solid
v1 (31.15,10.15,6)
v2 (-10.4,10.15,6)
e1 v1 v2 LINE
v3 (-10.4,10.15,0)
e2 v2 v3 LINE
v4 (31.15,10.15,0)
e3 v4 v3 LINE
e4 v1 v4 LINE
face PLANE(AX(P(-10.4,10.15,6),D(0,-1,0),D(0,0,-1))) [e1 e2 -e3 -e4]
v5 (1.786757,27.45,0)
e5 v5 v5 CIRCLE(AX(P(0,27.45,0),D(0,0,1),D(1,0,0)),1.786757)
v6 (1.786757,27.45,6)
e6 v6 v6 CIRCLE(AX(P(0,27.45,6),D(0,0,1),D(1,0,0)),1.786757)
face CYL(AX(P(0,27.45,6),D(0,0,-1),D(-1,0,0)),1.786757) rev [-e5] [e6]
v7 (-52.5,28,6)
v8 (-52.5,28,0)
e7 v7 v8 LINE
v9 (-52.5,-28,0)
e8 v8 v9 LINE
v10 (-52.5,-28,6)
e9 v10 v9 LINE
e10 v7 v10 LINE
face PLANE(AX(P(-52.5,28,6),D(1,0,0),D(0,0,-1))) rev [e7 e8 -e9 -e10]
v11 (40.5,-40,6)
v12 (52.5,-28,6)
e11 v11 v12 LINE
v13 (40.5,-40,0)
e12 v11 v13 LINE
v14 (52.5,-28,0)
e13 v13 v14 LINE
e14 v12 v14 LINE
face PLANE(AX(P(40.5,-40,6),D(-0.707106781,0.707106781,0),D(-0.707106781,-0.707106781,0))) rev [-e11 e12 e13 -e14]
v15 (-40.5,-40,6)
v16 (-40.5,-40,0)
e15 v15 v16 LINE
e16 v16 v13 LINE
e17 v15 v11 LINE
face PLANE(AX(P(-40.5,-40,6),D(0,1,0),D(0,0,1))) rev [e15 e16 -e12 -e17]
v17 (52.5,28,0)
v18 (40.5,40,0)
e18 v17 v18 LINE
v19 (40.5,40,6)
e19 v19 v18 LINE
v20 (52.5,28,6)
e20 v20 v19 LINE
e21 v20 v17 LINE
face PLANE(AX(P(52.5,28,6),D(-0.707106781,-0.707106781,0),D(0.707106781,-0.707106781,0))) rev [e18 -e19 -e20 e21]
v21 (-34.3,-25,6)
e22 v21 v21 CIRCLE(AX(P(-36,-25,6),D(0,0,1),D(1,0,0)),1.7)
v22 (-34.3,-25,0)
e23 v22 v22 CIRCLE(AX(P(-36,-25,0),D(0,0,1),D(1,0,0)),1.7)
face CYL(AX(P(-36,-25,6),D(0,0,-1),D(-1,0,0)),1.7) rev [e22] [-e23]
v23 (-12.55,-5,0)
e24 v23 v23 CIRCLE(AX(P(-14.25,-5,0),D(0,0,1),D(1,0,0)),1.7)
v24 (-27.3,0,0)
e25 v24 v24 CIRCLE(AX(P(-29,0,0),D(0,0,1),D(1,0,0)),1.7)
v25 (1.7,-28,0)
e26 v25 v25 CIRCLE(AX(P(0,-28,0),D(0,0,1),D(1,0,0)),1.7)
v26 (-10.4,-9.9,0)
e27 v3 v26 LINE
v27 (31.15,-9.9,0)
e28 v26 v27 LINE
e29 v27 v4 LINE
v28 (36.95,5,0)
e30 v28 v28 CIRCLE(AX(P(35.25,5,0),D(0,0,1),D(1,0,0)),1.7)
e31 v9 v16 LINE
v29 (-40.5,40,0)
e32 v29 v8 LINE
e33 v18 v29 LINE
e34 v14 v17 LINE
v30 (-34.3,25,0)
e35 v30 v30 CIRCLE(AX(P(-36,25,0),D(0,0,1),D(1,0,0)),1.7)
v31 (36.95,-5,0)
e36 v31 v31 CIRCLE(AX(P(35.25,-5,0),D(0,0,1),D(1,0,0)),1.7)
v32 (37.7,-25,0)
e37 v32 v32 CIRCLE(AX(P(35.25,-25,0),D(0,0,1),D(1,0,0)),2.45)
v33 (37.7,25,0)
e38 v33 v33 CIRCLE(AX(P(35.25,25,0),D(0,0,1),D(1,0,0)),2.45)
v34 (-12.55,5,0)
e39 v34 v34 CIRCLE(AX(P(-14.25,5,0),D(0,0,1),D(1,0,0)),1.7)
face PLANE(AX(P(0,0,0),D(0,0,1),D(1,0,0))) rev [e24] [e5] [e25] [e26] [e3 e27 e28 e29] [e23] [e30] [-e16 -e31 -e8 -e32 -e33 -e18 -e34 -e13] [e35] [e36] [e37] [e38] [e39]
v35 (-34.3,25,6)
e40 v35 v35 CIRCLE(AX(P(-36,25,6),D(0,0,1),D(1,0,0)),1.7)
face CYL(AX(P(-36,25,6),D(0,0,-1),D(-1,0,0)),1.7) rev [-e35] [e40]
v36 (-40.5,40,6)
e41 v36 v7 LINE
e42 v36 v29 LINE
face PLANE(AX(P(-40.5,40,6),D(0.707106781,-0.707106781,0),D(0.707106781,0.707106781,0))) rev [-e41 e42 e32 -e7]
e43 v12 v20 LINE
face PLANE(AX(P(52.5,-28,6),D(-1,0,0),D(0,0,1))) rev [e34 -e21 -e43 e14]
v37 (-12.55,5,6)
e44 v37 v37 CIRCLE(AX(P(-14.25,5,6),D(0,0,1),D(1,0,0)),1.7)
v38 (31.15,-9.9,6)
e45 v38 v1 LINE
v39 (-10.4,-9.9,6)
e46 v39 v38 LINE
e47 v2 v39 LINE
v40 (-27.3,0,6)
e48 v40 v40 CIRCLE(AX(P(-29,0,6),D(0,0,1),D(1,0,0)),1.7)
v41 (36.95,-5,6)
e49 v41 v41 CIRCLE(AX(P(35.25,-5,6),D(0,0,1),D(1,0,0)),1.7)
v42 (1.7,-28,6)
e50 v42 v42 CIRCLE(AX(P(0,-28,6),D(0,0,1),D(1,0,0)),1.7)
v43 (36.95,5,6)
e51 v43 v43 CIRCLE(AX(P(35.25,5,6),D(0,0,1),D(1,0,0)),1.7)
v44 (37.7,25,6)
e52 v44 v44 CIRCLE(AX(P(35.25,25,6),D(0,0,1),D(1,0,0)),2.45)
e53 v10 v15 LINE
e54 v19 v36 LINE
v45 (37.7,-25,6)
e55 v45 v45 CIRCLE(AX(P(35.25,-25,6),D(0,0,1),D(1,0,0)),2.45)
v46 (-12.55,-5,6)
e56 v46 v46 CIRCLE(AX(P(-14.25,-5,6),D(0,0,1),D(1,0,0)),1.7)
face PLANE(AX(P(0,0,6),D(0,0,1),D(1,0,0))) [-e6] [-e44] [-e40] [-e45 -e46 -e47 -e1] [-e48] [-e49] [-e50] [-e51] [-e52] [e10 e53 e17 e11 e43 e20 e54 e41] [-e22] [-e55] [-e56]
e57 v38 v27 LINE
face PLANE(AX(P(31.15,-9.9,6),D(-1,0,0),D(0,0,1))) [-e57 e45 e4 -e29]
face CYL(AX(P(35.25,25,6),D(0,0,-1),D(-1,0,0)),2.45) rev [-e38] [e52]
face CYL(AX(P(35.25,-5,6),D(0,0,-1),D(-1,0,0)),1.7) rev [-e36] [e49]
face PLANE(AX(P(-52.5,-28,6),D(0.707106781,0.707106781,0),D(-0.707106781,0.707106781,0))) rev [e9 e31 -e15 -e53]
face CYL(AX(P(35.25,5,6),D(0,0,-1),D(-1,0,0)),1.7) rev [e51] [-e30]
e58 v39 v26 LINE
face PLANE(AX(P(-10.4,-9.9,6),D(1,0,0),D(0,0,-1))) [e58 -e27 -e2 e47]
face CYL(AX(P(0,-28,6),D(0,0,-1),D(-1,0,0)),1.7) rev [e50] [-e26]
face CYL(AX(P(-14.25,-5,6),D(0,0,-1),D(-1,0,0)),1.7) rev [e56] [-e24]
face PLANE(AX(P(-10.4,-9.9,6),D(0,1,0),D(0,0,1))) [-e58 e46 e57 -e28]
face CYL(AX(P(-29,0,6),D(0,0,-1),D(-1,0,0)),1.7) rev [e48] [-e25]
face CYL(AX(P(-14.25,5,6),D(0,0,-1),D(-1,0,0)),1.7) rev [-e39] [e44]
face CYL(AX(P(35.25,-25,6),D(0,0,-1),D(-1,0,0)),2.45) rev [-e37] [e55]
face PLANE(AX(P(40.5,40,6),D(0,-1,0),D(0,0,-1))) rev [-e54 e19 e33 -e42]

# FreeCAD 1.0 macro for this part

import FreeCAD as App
import Part
import Sketcher

V = App.Vector

doc = App.newDocument("Part")
body = doc.addObject("PartDesign::Body", "Body")

sketch1 = body.newObject("Sketcher::SketchObject", "Sketch")
sketch1.AttachmentSupport = (doc.getObject("XY_Plane"), [""])
sketch1.MapMode = "FlatFace"
sketch1.addGeometry([
    Part.LineSegment(V(-40.5, -40, 0), V(40.5, -40, 0)),
    Part.LineSegment(V(40.5, -40, 0), V(52.5, -28, 0)),
    Part.LineSegment(V(52.5, -28, 0), V(52.5, 28, 0)),
    Part.LineSegment(V(52.5, 28, 0), V(40.5, 40, 0)),
    Part.LineSegment(V(40.5, 40, 0), V(-40.5, 40, 0)),
    Part.LineSegment(V(-40.5, 40, 0), V(-52.5, 28, 0)),
    Part.LineSegment(V(-52.5, 28, 0), V(-52.5, -28, 0)),
    Part.LineSegment(V(-52.5, -28, 0), V(-40.5, -40, 0)),
    Part.Circle(V(-36, -25, 0), V(0, 0, 1), 1.7),
    Part.Circle(V(-14.2, -5, 0), V(0, 0, 1), 1.7),
    Part.Circle(V(0, -28, 0), V(0, 0, 1), 1.7),
    Part.Circle(V(35.2, -25, 0), V(0, 0, 1), 2.5),
    Part.Circle(V(35.2, -5, 0), V(0, 0, 1), 1.7),
    Part.Circle(V(-29, 0, 0), V(0, 0, 1), 1.7),
    Part.Circle(V(-14.2, 5, 0), V(0, 0, 1), 1.7),
    Part.Circle(V(-36, 25, 0), V(0, 0, 1), 1.7),
    Part.LineSegment(V(31.1, -9.9, 0), V(-10.4, -9.9, 0)),
    Part.LineSegment(V(-10.4, -9.9, 0), V(-10.4, 10.2, 0)),
    Part.LineSegment(V(-10.4, 10.2, 0), V(31.1, 10.2, 0)),
    Part.LineSegment(V(31.1, 10.2, 0), V(31.1, -9.9, 0)),
    Part.Circle(V(35.2, 5, 0), V(0, 0, 1), 1.7),
    Part.Circle(V(0, 27.4, 0), V(0, 0, 1), 1.8),
    Part.Circle(V(35.2, 25, 0), V(0, 0, 1), 2.5),
], False)
sketch1.addConstraint([
    Sketcher.Constraint("Coincident", 0, 2, 1, 1),
    Sketcher.Constraint("Coincident", 1, 2, 2, 1),
    Sketcher.Constraint("Coincident", 2, 2, 3, 1),
    Sketcher.Constraint("Coincident", 3, 2, 4, 1),
    Sketcher.Constraint("Coincident", 4, 2, 5, 1),
    Sketcher.Constraint("Coincident", 5, 2, 6, 1),
    Sketcher.Constraint("Coincident", 6, 2, 7, 1),
    Sketcher.Constraint("Coincident", 7, 2, 0, 1),
    Sketcher.Constraint("Coincident", 16, 2, 17, 1),
    Sketcher.Constraint("Coincident", 17, 2, 18, 1),
    Sketcher.Constraint("Coincident", 18, 2, 19, 1),
    Sketcher.Constraint("Coincident", 19, 2, 16, 1),
    Sketcher.Constraint("Horizontal", 0),
    Sketcher.Constraint("Vertical", 2),
    Sketcher.Constraint("Horizontal", 4),
    Sketcher.Constraint("Vertical", 6),
    Sketcher.Constraint("Horizontal", 16),
    Sketcher.Constraint("Vertical", 17),
    Sketcher.Constraint("Horizontal", 18),
    Sketcher.Constraint("Vertical", 19),
    Sketcher.Constraint("Equal", 8, 9),
    Sketcher.Constraint("Equal", 9, 10),
    Sketcher.Constraint("Equal", 10, 12),
    Sketcher.Constraint("Equal", 12, 13),
    Sketcher.Constraint("Equal", 13, 14),
    Sketcher.Constraint("Equal", 14, 15),
    Sketcher.Constraint("Equal", 15, 20),
    Sketcher.Constraint("Equal", 11, 22),
    Sketcher.Constraint("Symmetric", 0, 2, 4, 2, -1, 1),
    Sketcher.Constraint("Symmetric", 1, 2, 5, 2, -1, 1),
    Sketcher.Constraint("Symmetric", 9, 3, 14, 3, -1),
    Sketcher.Constraint("Symmetric", 8, 3, 15, 3, -1),
    Sketcher.Constraint("Symmetric", 12, 3, 20, 3, -1),
    Sketcher.Constraint("Symmetric", 11, 3, 22, 3, -1),
    Sketcher.Constraint("PointOnObject", 10, 3, -2),
    Sketcher.Constraint("PointOnObject", 13, 3, -1),
    Sketcher.Constraint("PointOnObject", 21, 3, -2),
    Sketcher.Constraint("Perpendicular", 1, 3),
    Sketcher.Constraint("Perpendicular", 5, 7),
    Sketcher.Constraint("Horizontal", 8, 3, 11, 3),
    Sketcher.Constraint("Horizontal", 9, 3, 12, 3),
    Sketcher.Constraint("Horizontal", 10, 3, 1, 2),
    Sketcher.Constraint("Horizontal", 2, 2, 5, 2),
    Sketcher.Constraint("Horizontal", 1, 2, 6, 2),
    Sketcher.Constraint("Vertical", 11, 3, 12, 3),
    Sketcher.Constraint("Vertical", 0, 2, 3, 2),
    Sketcher.Constraint("Diameter", 8, 3.4),
    Sketcher.Constraint("Diameter", 11, 4.9),
    Sketcher.Constraint("DistanceX", 0, 1, 0, 2, 81.0),
    Sketcher.Constraint("DistanceY", 2, 1, 2, 2, 56.0),
    Sketcher.Constraint("DistanceX", 8, 3, -1, 1, 36.0),
    Sketcher.Constraint("DistanceY", 8, 3, -1, 1, 25.0),
    Sketcher.Constraint("DistanceY", 9, 3, -1, 1, 5.0),
    Sketcher.Constraint("DistanceX", 13, 3, -1, 1, 29.0),
    Sketcher.Constraint("DistanceY", 0, 2, -1, 1, 40.0),
    Sketcher.Constraint("DistanceX", 16, 2, 16, 1, 41.55),
    Sketcher.Constraint("DistanceY", 17, 1, 17, 2, 20.05),
    Sketcher.Constraint("DistanceX", 16, 2, -1, 1, 10.4),
    Sketcher.Constraint("DistanceY", 16, 2, -1, 1, 9.9),
    Sketcher.Constraint("DistanceX", 9, 3, 11, 3, 49.5),
    Sketcher.Constraint("DistanceY", 17, 2, 21, 3, 17.3),
    Sketcher.Constraint("DistanceX", 18, 2, 20, 3, 4.1),
    Sketcher.Constraint("Diameter", 21, 3.573514),
])
pad1 = body.newObject("PartDesign::Pad", "Pad")
pad1.Profile = sketch1
pad1.Length = 6

doc.recompute()
